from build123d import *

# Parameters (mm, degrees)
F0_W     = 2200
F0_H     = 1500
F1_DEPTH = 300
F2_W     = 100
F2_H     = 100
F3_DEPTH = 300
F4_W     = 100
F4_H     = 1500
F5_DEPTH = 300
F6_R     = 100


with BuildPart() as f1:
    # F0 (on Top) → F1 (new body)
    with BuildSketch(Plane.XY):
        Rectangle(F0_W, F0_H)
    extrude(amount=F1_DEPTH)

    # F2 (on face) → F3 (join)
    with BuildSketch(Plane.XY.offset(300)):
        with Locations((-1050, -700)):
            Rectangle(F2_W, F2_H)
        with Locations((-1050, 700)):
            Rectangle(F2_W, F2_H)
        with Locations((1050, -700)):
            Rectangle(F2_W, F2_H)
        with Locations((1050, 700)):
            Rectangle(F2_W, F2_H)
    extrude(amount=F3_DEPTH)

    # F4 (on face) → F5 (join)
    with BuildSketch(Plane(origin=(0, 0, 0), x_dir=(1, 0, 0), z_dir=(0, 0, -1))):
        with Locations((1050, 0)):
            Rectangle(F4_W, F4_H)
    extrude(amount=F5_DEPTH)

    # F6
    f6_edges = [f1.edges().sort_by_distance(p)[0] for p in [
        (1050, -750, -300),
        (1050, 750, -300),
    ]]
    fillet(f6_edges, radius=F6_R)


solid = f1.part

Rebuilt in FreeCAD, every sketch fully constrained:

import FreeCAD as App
import Part
import Sketcher
from FreeCAD import Vector
Q = App.Units.Quantity


def edges_at(feature, points):
    """Names of the edges that pass closest to the given points."""
    edges = feature.Shape.Edges
    near = lambda p: min(range(len(edges)), key=lambda i: edges[i].distToShape(Part.Vertex(*p))[0])
    return sorted({f"Edge{near(p) + 1}" for p in points})

doc = App.newDocument("Part")
params = doc.addObject("Spreadsheet::Sheet", "Params")
for row, (alias, value) in enumerate([
    ("sketch1_width", "2200 mm"),
    ("sketch1_height", "1500 mm"),
    ("pad1_length", "300 mm"),
    ("sketch2_width", "100 mm"),
    ("pad2_length", "300 mm"),
    ("sketch3_width", "100 mm"),
    ("sketch3_height", "1500 mm"),
    ("pad3_length", "300 mm"),
    ("fillet_radius", "100 mm"),
], start=1):
    params.set(f"A{row}", alias)
    params.set(f"B{row}", "=" + value)
    params.setAlias(f"B{row}", alias)

body = doc.addObject("PartDesign::Body", "Body")

# Sketch on XY plane
sketch1 = doc.addObject("Sketcher::SketchObject", "Sketch")
body.addObject(sketch1)
sketch1.AttachmentSupport = (doc.XY_Plane, [""])
sketch1.MapMode = "FlatFace"
sketch1.addGeometry(Part.LineSegment(Vector(-1100, 750, 0), Vector(-1100, -750, 0)), False)
sketch1.addGeometry(Part.LineSegment(Vector(-1100, -750, 0), Vector(1100, -750, 0)), False)
sketch1.addGeometry(Part.LineSegment(Vector(1100, -750, 0), Vector(1100, 750, 0)), False)
sketch1.addGeometry(Part.LineSegment(Vector(1100, 750, 0), Vector(-1100, 750, 0)), False)
sketch1.addConstraint(Sketcher.Constraint("Coincident", 0, 2, 1, 1))
sketch1.addConstraint(Sketcher.Constraint("Coincident", 1, 2, 2, 1))
sketch1.addConstraint(Sketcher.Constraint("Coincident", 2, 2, 3, 1))
sketch1.addConstraint(Sketcher.Constraint("Coincident", 3, 2, 0, 1))
sketch1.addConstraint(Sketcher.Constraint("Vertical", 0))
sketch1.addConstraint(Sketcher.Constraint("Horizontal", 1))
sketch1.addConstraint(Sketcher.Constraint("Vertical", 2))
sketch1.addConstraint(Sketcher.Constraint("Horizontal", 3))
sketch1.addConstraint(Sketcher.Constraint("Symmetric", 0, 2, 2, 2, -1, 1))
sketch1.addConstraint(Sketcher.Constraint("DistanceX", 1, 1, 1, 2, Q("2200 mm")))
sketch1.addConstraint(Sketcher.Constraint("DistanceY", 0, 2, 0, 1, Q("1500 mm")))
sketch1.setExpression("Constraints[9]", "Params.sketch1_width")
sketch1.setExpression("Constraints[10]", "Params.sketch1_height")
pad1 = doc.addObject("PartDesign::Pad", "Pad")
body.addObject(pad1)
pad1.Profile = sketch1
pad1.setExpression("Length", "Params.pad1_length")

# Sketch on XY plane
sketch2 = doc.addObject("Sketcher::SketchObject", "Sketch001")
body.addObject(sketch2)
sketch2.AttachmentSupport = (doc.XY_Plane, [""])
sketch2.MapMode = "FlatFace"
sketch2.AttachmentOffset = App.Placement(Vector(0, 0, 300), App.Rotation())
sketch2.addGeometry(Part.LineSegment(Vector(-1100, -650, 0), Vector(-1100, -750, 0)), False)
sketch2.addGeometry(Part.LineSegment(Vector(-1100, -750, 0), Vector(-1000, -750, 0)), False)
sketch2.addGeometry(Part.LineSegment(Vector(-1000, -750, 0), Vector(-1000, -650, 0)), False)
sketch2.addGeometry(Part.LineSegment(Vector(-1000, -650, 0), Vector(-1100, -650, 0)), False)
sketch2.addGeometry(Part.LineSegment(Vector(-1100, 750, 0), Vector(-1100, 650, 0)), False)
sketch2.addGeometry(Part.LineSegment(Vector(-1100, 650, 0), Vector(-1000, 650, 0)), False)
sketch2.addGeometry(Part.LineSegment(Vector(-1000, 650, 0), Vector(-1000, 750, 0)), False)
sketch2.addGeometry(Part.LineSegment(Vector(-1000, 750, 0), Vector(-1100, 750, 0)), False)
sketch2.addGeometry(Part.LineSegment(Vector(1000, -650, 0), Vector(1000, -750, 0)), False)
sketch2.addGeometry(Part.LineSegment(Vector(1000, -750, 0), Vector(1100, -750, 0)), False)
sketch2.addGeometry(Part.LineSegment(Vector(1100, -750, 0), Vector(1100, -650, 0)), False)
sketch2.addGeometry(Part.LineSegment(Vector(1100, -650, 0), Vector(1000, -650, 0)), False)
sketch2.addGeometry(Part.LineSegment(Vector(1000, 750, 0), Vector(1000, 650, 0)), False)
sketch2.addGeometry(Part.LineSegment(Vector(1000, 650, 0), Vector(1100, 650, 0)), False)
sketch2.addGeometry(Part.LineSegment(Vector(1100, 650, 0), Vector(1100, 750, 0)), False)
sketch2.addGeometry(Part.LineSegment(Vector(1100, 750, 0), Vector(1000, 750, 0)), False)
sketch2.addConstraint(Sketcher.Constraint("Coincident", 0, 2, 1, 1))
sketch2.addConstraint(Sketcher.Constraint("Coincident", 1, 2, 2, 1))
sketch2.addConstraint(Sketcher.Constraint("Coincident", 2, 2, 3, 1))
sketch2.addConstraint(Sketcher.Constraint("Coincident", 3, 2, 0, 1))
sketch2.addConstraint(Sketcher.Constraint("Coincident", 4, 2, 5, 1))
sketch2.addConstraint(Sketcher.Constraint("Coincident", 5, 2, 6, 1))
sketch2.addConstraint(Sketcher.Constraint("Coincident", 6, 2, 7, 1))
sketch2.addConstraint(Sketcher.Constraint("Coincident", 7, 2, 4, 1))
sketch2.addConstraint(Sketcher.Constraint("Coincident", 8, 2, 9, 1))
sketch2.addConstraint(Sketcher.Constraint("Coincident", 9, 2, 10, 1))
sketch2.addConstraint(Sketcher.Constraint("Coincident", 10, 2, 11, 1))
sketch2.addConstraint(Sketcher.Constraint("Coincident", 11, 2, 8, 1))
sketch2.addConstraint(Sketcher.Constraint("Coincident", 12, 2, 13, 1))
sketch2.addConstraint(Sketcher.Constraint("Coincident", 13, 2, 14, 1))
sketch2.addConstraint(Sketcher.Constraint("Coincident", 14, 2, 15, 1))
sketch2.addConstraint(Sketcher.Constraint("Coincident", 15, 2, 12, 1))
sketch2.addConstraint(Sketcher.Constraint("Vertical", 0))
sketch2.addConstraint(Sketcher.Constraint("Horizontal", 1))
sketch2.addConstraint(Sketcher.Constraint("Vertical", 2))
sketch2.addConstraint(Sketcher.Constraint("Horizontal", 3))
sketch2.addConstraint(Sketcher.Constraint("Vertical", 4))
sketch2.addConstraint(Sketcher.Constraint("Horizontal", 5))
sketch2.addConstraint(Sketcher.Constraint("Vertical", 6))
sketch2.addConstraint(Sketcher.Constraint("Horizontal", 7))
sketch2.addConstraint(Sketcher.Constraint("Vertical", 8))
sketch2.addConstraint(Sketcher.Constraint("Horizontal", 9))
sketch2.addConstraint(Sketcher.Constraint("Vertical", 10))
sketch2.addConstraint(Sketcher.Constraint("Horizontal", 11))
sketch2.addConstraint(Sketcher.Constraint("Vertical", 12))
sketch2.addConstraint(Sketcher.Constraint("Horizontal", 13))
sketch2.addConstraint(Sketcher.Constraint("Vertical", 14))
sketch2.addConstraint(Sketcher.Constraint("Horizontal", 15))
sketch2.addConstraint(Sketcher.Constraint("Symmetric", 6, 2, 8, 2, -1, 1))
sketch2.addConstraint(Sketcher.Constraint("Symmetric", 4, 2, 10, 2, -1, 1))
sketch2.addConstraint(Sketcher.Constraint("Symmetric", 2, 2, 12, 2, -1, 1))
sketch2.addConstraint(Sketcher.Constraint("Symmetric", 0, 2, 14, 2, -1, 1))
sketch2.addConstraint(Sketcher.Constraint("Symmetric", 1, 2, 8, 2, -2))
sketch2.addConstraint(Sketcher.Constraint("Symmetric", 3, 2, 10, 2, -2))
sketch2.addConstraint(Sketcher.Constraint("Equal", 15, 0))
sketch2.addConstraint(Sketcher.Constraint("DistanceX", 1, 1, 1, 2, Q("100 mm")))
sketch2.addConstraint(Sketcher.Constraint("DistanceX", 0, 2, -1, 1, Q("1100 mm")))
sketch2.addConstraint(Sketcher.Constraint("DistanceY", 0, 2, -1, 1, Q("750 mm")))
sketch2.setExpression("Constraints[39]", "Params.sketch2_width")
pad2 = doc.addObject("PartDesign::Pad", "Pad001")
body.addObject(pad2)
pad2.Profile = sketch2
pad2.setExpression("Length", "Params.pad2_length")

# Sketch on XY plane
sketch3 = doc.addObject("Sketcher::SketchObject", "Sketch002")
body.addObject(sketch3)
sketch3.AttachmentSupport = (doc.XY_Plane, [""])
sketch3.MapMode = "FlatFace"
sketch3.addGeometry(Part.LineSegment(Vector(1000, -750, 0), Vector(1000, 750, 0)), False)
sketch3.addGeometry(Part.LineSegment(Vector(1000, 750, 0), Vector(1100, 750, 0)), False)
sketch3.addGeometry(Part.LineSegment(Vector(1100, 750, 0), Vector(1100, -750, 0)), False)
sketch3.addGeometry(Part.LineSegment(Vector(1100, -750, 0), Vector(1000, -750, 0)), False)
sketch3.addConstraint(Sketcher.Constraint("Coincident", 0, 2, 1, 1))
sketch3.addConstraint(Sketcher.Constraint("Coincident", 1, 2, 2, 1))
sketch3.addConstraint(Sketcher.Constraint("Coincident", 2, 2, 3, 1))
sketch3.addConstraint(Sketcher.Constraint("Coincident", 3, 2, 0, 1))
sketch3.addConstraint(Sketcher.Constraint("Vertical", 0))
sketch3.addConstraint(Sketcher.Constraint("Horizontal", 1))
sketch3.addConstraint(Sketcher.Constraint("Vertical", 2))
sketch3.addConstraint(Sketcher.Constraint("Horizontal", 3))
sketch3.addConstraint(Sketcher.Constraint("DistanceX", 1, 1, 1, 2, Q("100 mm")))
sketch3.addConstraint(Sketcher.Constraint("DistanceY", 0, 1, 0, 2, Q("1500 mm")))
sketch3.addConstraint(Sketcher.Constraint("DistanceX", -1, 1, 0, 2, Q("1000 mm")))
sketch3.addConstraint(Sketcher.Constraint("DistanceY", -1, 1, 0, 2, Q("750 mm")))
sketch3.setExpression("Constraints[8]", "Params.sketch3_width")
sketch3.setExpression("Constraints[9]", "Params.sketch3_height")
pad3 = doc.addObject("PartDesign::Pad", "Pad002")
body.addObject(pad3)
pad3.Profile = sketch3
pad3.setExpression("Length", "Params.pad3_length")
pad3.Reversed = True
doc.recompute()

fillet = doc.addObject("PartDesign::Fillet", "Fillet")
body.addObject(fillet)
fillet.Base = (pad3, edges_at(pad3, [(1050, -750, -300), (1050, 750, -300)]))
fillet.setExpression("Radius", "Params.fillet_radius")

doc.recompute()
